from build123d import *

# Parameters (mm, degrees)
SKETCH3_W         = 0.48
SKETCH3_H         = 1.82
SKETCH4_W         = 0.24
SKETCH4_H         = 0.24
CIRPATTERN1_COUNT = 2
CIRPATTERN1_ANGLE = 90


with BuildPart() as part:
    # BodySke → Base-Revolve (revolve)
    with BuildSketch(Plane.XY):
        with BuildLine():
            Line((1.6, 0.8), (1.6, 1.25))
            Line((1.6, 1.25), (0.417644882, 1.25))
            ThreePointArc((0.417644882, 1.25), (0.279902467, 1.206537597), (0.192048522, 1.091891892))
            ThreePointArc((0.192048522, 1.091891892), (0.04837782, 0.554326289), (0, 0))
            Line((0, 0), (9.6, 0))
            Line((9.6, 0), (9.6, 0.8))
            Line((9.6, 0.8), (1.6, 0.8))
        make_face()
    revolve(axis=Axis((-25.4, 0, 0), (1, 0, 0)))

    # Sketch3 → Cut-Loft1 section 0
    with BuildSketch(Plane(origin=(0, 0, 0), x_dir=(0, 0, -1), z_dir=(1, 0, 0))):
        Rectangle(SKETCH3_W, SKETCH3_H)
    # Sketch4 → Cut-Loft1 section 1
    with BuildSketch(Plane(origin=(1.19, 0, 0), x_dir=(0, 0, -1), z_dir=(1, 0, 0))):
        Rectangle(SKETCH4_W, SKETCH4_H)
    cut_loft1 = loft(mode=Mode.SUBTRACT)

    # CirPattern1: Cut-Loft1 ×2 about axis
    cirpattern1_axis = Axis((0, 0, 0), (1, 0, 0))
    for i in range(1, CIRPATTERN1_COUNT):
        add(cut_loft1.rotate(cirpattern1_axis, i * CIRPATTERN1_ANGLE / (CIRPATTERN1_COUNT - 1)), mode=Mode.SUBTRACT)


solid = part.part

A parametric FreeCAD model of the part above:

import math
import FreeCAD as App
import Part
import Sketcher


def add_polygon(sketch, points):
    """Adds a closed chain of lines whose ends are joined by coincident constraints."""
    first, n = sketch.GeometryCount, len(points)
    for a, b in zip(points, points[1:] + points[:1]):
        sketch.addGeometry(Part.LineSegment(App.Vector(*a, 0), App.Vector(*b, 0)), False)
    for i in range(n):
        sketch.addConstraint(Sketcher.Constraint("Coincident", first + i, 2, first + (i + 1) % n, 1))

doc = App.newDocument("Part")
body = doc.addObject("PartDesign::Body", "Body")

# Sketch on XY plane
sketch1 = doc.addObject("Sketcher::SketchObject", "Sketch")
body.addObject(sketch1)
sketch1.AttachmentSupport = (doc.XY_Plane, [""])
sketch1.MapMode = "FlatFace"
sketch1.addGeometry([
    Part.LineSegment(App.Vector(1.6, 0.8, 0), App.Vector(1.6, 1.25, 0)),  # 0
    Part.LineSegment(App.Vector(1.6, 1.25, 0), App.Vector(0.42, 1.25, 0)),  # 1
    Part.ArcOfCircle(Part.Circle(App.Vector(0.42, 1.01, 0), App.Vector(0, 0, 1), 0.24), math.radians(90), math.radians(160)),  # 2
    Part.ArcOfCircle(Part.Circle(App.Vector(3.2, 0, 0), App.Vector(0, 0, 1), 3.2), math.radians(160.05), math.radians(180)),  # 3
    Part.LineSegment(App.Vector(0, 0, 0), App.Vector(9.6, 0, 0)),  # 4
    Part.LineSegment(App.Vector(9.6, 0, 0), App.Vector(9.6, 0.8, 0)),  # 5
    Part.LineSegment(App.Vector(9.6, 0.8, 0), App.Vector(1.6, 0.8, 0)),  # 6
], False)
sketch1.addConstraint([
    Sketcher.Constraint("Coincident", 0, 2, 1, 1),
    Sketcher.Constraint("Tangent", 1, 2, 2, 1),
    Sketcher.Constraint("Tangent", 2, 2, 3, 1),
    Sketcher.Constraint("Coincident", 3, 2, 4, 1),
    Sketcher.Constraint("Coincident", 4, 2, 5, 1),
    Sketcher.Constraint("Coincident", 5, 2, 6, 1),
    Sketcher.Constraint("Coincident", 6, 2, 0, 1),
    Sketcher.Constraint("Vertical", 0),
    Sketcher.Constraint("Horizontal", 1),
    Sketcher.Constraint("Horizontal", 4),
    Sketcher.Constraint("Vertical", 5),
    Sketcher.Constraint("Horizontal", 6),
    Sketcher.Constraint("Coincident", 3, 2, -1, 1),
    Sketcher.Constraint("PointOnObject", 3, 3, -1),
    Sketcher.Constraint("Radius", 3, 3.2),
    Sketcher.Constraint("DistanceX", 6, 2, 6, 1, 8.0),
    Sketcher.Constraint("Radius", 2, 0.24),
    Sketcher.Constraint("DistanceX", 4, 1, 4, 2, 9.6),
    Sketcher.Constraint("DistanceY", 5, 1, 5, 2, 0.8),
    Sketcher.Constraint("DistanceY", 0, 1, 0, 2, 0.45),
])
revolution = doc.addObject("PartDesign::Revolution", "Revolution")
body.addObject(revolution)
revolution.Profile = sketch1
revolution.ReferenceAxis = (sketch1, ["H_Axis"])
revolution.Angle = 360

# Sketch on YZ plane
sketch2 = doc.addObject("Sketcher::SketchObject", "Sketch001")
body.addObject(sketch2)
sketch2.AttachmentSupport = (doc.YZ_Plane, [""])
sketch2.MapMode = "FlatFace"
add_polygon(sketch2, [(0.91, 0.24), (-0.91, 0.24), (-0.91, -0.24), (0.91, -0.24)])  # lines 0-3
sketch2.addConstraint([
    Sketcher.Constraint("Horizontal", 0),
    Sketcher.Constraint("Vertical", 1),
    Sketcher.Constraint("Horizontal", 2),
    Sketcher.Constraint("Vertical", 3),
    Sketcher.Constraint("Symmetric", 0, 2, 2, 2, -1, 1),
    Sketcher.Constraint("DistanceX", 0, 2, 0, 1, 1.82),
    Sketcher.Constraint("DistanceY", 1, 2, 1, 1, 0.48),
])

# Sketch on YZ plane
sketch3 = doc.addObject("Sketcher::SketchObject", "Sketch002")
body.addObject(sketch3)
sketch3.AttachmentSupport = (doc.YZ_Plane, [""])
sketch3.MapMode = "FlatFace"
sketch3.AttachmentOffset = App.Placement(App.Vector(0, 0, 1.19), App.Rotation())
add_polygon(sketch3, [(0.12, 0.12), (-0.12, 0.12), (-0.12, -0.12), (0.12, -0.12)])  # lines 0-3
sketch3.addConstraint([
    Sketcher.Constraint("Horizontal", 0),
    Sketcher.Constraint("Vertical", 1),
    Sketcher.Constraint("Horizontal", 2),
    Sketcher.Constraint("Vertical", 3),
    Sketcher.Constraint("Symmetric", 0, 2, 2, 2, -1, 1),
    Sketcher.Constraint("Equal", 2, 1),
    Sketcher.Constraint("DistanceX", 0, 2, 0, 1, 0.24),
])

subtractiveloft = doc.addObject("PartDesign::SubtractiveLoft", "SubtractiveLoft")
body.addObject(subtractiveloft)
subtractiveloft.Profile = sketch2
subtractiveloft.Sections = [sketch3]
doc.recompute()

polarpattern = doc.addObject("PartDesign::PolarPattern", "PolarPattern")
body.addObject(polarpattern)
polarpattern.Originals = [subtractiveloft]
polarpattern.Axis = (doc.X_Axis, [""])
polarpattern.Angle = 90
polarpattern.Occurrences = 2
body.Tip = polarpattern

doc.recompute()
